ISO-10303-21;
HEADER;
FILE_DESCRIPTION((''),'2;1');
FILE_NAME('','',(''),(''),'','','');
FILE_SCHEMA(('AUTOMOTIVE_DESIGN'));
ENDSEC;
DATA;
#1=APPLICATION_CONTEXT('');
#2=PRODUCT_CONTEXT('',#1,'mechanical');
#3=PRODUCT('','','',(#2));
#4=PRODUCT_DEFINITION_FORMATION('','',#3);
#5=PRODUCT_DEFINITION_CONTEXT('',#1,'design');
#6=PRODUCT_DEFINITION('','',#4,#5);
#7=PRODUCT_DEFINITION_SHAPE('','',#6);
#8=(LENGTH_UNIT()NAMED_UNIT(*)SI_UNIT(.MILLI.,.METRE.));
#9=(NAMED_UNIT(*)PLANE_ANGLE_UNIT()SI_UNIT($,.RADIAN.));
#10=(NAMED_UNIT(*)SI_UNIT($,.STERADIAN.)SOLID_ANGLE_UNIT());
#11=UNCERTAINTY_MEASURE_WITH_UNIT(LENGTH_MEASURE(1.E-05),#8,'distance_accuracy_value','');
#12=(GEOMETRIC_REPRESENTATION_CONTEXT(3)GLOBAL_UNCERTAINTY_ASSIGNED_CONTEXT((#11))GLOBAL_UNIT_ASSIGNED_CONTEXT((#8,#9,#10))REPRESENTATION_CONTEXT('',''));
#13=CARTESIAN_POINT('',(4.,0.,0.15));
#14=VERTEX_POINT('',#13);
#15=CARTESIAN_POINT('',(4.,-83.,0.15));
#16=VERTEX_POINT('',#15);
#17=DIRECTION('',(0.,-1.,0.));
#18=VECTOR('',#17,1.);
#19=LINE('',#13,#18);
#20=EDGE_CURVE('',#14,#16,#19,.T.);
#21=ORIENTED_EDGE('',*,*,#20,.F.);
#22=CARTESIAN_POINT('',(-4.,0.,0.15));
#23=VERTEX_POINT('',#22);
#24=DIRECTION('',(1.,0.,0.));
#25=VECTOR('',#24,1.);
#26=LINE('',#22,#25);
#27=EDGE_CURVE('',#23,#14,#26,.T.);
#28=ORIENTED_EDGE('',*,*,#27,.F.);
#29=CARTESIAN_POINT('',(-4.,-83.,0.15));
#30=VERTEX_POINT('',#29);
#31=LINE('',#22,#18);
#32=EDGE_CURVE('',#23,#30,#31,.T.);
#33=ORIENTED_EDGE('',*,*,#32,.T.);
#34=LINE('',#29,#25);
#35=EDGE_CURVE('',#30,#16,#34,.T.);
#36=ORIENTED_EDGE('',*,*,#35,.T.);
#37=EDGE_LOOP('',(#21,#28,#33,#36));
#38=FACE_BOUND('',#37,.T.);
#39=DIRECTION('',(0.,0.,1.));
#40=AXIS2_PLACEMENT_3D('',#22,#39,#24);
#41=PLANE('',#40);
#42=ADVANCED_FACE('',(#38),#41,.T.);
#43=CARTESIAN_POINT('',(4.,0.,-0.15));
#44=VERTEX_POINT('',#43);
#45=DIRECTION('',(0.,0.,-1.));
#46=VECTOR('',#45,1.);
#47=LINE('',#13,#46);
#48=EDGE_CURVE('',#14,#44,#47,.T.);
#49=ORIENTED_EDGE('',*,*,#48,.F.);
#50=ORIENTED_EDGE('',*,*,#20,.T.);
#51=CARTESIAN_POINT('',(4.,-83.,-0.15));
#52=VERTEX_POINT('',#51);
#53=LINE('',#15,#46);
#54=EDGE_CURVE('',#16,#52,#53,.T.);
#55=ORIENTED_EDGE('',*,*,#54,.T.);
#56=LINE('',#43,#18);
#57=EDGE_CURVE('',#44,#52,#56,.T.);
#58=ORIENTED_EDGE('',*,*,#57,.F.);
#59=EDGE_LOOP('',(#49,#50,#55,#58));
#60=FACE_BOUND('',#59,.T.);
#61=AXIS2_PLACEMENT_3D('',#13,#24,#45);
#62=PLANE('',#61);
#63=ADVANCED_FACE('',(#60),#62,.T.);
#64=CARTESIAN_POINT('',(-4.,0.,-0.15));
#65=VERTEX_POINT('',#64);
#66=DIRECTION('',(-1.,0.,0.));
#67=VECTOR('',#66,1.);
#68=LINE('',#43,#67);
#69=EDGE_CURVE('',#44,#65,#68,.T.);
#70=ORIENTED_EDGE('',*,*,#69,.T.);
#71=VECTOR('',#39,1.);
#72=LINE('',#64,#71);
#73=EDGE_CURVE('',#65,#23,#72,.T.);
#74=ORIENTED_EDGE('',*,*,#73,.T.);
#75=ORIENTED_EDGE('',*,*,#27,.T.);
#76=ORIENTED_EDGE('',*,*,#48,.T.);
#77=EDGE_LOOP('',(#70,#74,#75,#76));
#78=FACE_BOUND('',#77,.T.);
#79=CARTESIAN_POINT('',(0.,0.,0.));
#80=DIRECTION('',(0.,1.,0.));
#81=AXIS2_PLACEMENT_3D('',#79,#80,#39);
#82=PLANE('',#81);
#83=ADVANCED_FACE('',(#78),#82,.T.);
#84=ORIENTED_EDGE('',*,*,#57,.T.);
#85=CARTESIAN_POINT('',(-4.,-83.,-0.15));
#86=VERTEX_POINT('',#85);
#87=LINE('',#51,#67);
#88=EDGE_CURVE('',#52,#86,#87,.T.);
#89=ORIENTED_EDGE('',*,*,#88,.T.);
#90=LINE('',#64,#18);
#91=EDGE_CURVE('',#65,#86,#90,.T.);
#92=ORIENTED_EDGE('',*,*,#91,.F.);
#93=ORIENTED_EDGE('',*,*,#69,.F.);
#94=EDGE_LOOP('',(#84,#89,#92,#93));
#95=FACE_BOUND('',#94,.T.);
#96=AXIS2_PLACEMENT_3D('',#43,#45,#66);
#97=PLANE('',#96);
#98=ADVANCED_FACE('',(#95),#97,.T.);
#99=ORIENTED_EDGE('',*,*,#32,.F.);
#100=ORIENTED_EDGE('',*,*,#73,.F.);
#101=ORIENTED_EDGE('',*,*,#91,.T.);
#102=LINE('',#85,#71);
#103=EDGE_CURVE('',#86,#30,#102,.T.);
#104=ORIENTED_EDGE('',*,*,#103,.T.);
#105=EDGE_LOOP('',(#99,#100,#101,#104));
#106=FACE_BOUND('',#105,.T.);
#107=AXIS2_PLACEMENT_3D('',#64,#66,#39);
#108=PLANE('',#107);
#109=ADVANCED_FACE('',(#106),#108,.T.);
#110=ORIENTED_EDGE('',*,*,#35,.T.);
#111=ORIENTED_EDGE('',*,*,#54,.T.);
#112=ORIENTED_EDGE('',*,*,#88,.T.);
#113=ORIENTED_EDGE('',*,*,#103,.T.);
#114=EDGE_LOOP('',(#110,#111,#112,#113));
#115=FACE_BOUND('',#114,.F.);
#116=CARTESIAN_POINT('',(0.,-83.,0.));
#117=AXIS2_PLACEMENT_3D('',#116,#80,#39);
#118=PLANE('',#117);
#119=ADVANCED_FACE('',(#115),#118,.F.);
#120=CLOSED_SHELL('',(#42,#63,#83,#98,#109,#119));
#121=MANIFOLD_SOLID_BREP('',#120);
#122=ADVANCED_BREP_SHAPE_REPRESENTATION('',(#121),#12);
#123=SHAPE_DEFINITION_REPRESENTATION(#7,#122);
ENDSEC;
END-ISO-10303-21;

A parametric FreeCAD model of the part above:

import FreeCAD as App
import Part
import Sketcher

V = App.Vector
Q = App.Units.Quantity


def add_polygon(sketch, points):
    """Adds a closed chain of lines whose ends are joined by coincident constraints."""
    first, n = sketch.GeometryCount, len(points)
    for a, b in zip(points, points[1:] + points[:1]):
        sketch.addGeometry(Part.LineSegment(App.Vector(*a, 0), App.Vector(*b, 0)), False)
    for i in range(n):
        sketch.addConstraint(Sketcher.Constraint("Coincident", first + i, 2, first + (i + 1) % n, 1))

doc = App.newDocument("Part")
body = doc.addObject("PartDesign::Body", "Body")

# Sketch on XZ plane
sketch1 = body.newObject("Sketcher::SketchObject", "Sketch")
sketch1.AttachmentSupport = (doc.getObject("XZ_Plane"), [""])
sketch1.MapMode = "FlatFace"
add_polygon(sketch1, [(-4, -0.15), (4, -0.15), (4, 0.15), (-4, 0.15)])  # lines 0-3
sketch1.addConstraint(Sketcher.Constraint("Horizontal", 0))
sketch1.addConstraint(Sketcher.Constraint("Vertical", 1))
sketch1.addConstraint(Sketcher.Constraint("Horizontal", 2))
sketch1.addConstraint(Sketcher.Constraint("Vertical", 3))
sketch1.addConstraint(Sketcher.Constraint("Symmetric", 0, 2, 2, 2, -1, 1))
sketch1.addConstraint(Sketcher.Constraint("DistanceX", -1, 1, 0, 2, Q("4 mm")))
sketch1.addConstraint(Sketcher.Constraint("DistanceY", 1, 1, 1, 2, Q("0.3 mm")))
pad1 = body.newObject("PartDesign::Pad", "Pad")
pad1.Profile = sketch1
pad1.Length = 83

doc.recompute()
